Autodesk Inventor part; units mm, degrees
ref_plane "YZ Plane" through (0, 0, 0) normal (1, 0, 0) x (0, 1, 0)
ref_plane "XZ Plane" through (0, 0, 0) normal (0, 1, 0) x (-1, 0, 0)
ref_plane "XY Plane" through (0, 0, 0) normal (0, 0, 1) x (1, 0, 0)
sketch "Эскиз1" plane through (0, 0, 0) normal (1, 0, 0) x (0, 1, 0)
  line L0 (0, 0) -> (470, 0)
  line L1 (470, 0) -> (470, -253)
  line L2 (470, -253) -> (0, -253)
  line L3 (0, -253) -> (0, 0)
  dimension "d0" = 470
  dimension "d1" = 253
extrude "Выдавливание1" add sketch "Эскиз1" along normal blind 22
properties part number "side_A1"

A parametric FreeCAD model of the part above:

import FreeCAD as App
import Part
import Sketcher
Q = App.Units.Quantity

doc = App.newDocument("Part")
body = doc.addObject("PartDesign::Body", "Body")

# Sketch on YZ plane
sketch1 = doc.addObject("Sketcher::SketchObject", "Sketch")
body.addObject(sketch1)
sketch1.AttachmentSupport = (doc.YZ_Plane, [""])
sketch1.MapMode = "FlatFace"
sketch1.addGeometry([
    Part.LineSegment(App.Vector(470, 0, 0), App.Vector(0, 0, 0)),
    Part.LineSegment(App.Vector(0, 0, 0), App.Vector(0, -253, 0)),
    Part.LineSegment(App.Vector(0, -253, 0), App.Vector(470, -253, 0)),
    Part.LineSegment(App.Vector(470, -253, 0), App.Vector(470, 0, 0)),
], False)
sketch1.addConstraint([
    Sketcher.Constraint("Coincident", 0, 2, 1, 1),
    Sketcher.Constraint("Coincident", 1, 2, 2, 1),
    Sketcher.Constraint("Coincident", 2, 2, 3, 1),
    Sketcher.Constraint("Coincident", 3, 2, 0, 1),
    Sketcher.Constraint("Horizontal", 0),
    Sketcher.Constraint("Vertical", 1),
    Sketcher.Constraint("Horizontal", 2),
    Sketcher.Constraint("Vertical", 3),
    Sketcher.Constraint("Coincident", 0, 2, -1, 1),
    Sketcher.Constraint("DistanceX", 0, 2, 0, 1, Q("470 mm")),
    Sketcher.Constraint("DistanceY", 1, 2, 1, 1, Q("253 mm")),
])
pad1 = doc.addObject("PartDesign::Pad", "Pad")
body.addObject(pad1)
pad1.Profile = sketch1
pad1.Length = 22

doc.recompute()
